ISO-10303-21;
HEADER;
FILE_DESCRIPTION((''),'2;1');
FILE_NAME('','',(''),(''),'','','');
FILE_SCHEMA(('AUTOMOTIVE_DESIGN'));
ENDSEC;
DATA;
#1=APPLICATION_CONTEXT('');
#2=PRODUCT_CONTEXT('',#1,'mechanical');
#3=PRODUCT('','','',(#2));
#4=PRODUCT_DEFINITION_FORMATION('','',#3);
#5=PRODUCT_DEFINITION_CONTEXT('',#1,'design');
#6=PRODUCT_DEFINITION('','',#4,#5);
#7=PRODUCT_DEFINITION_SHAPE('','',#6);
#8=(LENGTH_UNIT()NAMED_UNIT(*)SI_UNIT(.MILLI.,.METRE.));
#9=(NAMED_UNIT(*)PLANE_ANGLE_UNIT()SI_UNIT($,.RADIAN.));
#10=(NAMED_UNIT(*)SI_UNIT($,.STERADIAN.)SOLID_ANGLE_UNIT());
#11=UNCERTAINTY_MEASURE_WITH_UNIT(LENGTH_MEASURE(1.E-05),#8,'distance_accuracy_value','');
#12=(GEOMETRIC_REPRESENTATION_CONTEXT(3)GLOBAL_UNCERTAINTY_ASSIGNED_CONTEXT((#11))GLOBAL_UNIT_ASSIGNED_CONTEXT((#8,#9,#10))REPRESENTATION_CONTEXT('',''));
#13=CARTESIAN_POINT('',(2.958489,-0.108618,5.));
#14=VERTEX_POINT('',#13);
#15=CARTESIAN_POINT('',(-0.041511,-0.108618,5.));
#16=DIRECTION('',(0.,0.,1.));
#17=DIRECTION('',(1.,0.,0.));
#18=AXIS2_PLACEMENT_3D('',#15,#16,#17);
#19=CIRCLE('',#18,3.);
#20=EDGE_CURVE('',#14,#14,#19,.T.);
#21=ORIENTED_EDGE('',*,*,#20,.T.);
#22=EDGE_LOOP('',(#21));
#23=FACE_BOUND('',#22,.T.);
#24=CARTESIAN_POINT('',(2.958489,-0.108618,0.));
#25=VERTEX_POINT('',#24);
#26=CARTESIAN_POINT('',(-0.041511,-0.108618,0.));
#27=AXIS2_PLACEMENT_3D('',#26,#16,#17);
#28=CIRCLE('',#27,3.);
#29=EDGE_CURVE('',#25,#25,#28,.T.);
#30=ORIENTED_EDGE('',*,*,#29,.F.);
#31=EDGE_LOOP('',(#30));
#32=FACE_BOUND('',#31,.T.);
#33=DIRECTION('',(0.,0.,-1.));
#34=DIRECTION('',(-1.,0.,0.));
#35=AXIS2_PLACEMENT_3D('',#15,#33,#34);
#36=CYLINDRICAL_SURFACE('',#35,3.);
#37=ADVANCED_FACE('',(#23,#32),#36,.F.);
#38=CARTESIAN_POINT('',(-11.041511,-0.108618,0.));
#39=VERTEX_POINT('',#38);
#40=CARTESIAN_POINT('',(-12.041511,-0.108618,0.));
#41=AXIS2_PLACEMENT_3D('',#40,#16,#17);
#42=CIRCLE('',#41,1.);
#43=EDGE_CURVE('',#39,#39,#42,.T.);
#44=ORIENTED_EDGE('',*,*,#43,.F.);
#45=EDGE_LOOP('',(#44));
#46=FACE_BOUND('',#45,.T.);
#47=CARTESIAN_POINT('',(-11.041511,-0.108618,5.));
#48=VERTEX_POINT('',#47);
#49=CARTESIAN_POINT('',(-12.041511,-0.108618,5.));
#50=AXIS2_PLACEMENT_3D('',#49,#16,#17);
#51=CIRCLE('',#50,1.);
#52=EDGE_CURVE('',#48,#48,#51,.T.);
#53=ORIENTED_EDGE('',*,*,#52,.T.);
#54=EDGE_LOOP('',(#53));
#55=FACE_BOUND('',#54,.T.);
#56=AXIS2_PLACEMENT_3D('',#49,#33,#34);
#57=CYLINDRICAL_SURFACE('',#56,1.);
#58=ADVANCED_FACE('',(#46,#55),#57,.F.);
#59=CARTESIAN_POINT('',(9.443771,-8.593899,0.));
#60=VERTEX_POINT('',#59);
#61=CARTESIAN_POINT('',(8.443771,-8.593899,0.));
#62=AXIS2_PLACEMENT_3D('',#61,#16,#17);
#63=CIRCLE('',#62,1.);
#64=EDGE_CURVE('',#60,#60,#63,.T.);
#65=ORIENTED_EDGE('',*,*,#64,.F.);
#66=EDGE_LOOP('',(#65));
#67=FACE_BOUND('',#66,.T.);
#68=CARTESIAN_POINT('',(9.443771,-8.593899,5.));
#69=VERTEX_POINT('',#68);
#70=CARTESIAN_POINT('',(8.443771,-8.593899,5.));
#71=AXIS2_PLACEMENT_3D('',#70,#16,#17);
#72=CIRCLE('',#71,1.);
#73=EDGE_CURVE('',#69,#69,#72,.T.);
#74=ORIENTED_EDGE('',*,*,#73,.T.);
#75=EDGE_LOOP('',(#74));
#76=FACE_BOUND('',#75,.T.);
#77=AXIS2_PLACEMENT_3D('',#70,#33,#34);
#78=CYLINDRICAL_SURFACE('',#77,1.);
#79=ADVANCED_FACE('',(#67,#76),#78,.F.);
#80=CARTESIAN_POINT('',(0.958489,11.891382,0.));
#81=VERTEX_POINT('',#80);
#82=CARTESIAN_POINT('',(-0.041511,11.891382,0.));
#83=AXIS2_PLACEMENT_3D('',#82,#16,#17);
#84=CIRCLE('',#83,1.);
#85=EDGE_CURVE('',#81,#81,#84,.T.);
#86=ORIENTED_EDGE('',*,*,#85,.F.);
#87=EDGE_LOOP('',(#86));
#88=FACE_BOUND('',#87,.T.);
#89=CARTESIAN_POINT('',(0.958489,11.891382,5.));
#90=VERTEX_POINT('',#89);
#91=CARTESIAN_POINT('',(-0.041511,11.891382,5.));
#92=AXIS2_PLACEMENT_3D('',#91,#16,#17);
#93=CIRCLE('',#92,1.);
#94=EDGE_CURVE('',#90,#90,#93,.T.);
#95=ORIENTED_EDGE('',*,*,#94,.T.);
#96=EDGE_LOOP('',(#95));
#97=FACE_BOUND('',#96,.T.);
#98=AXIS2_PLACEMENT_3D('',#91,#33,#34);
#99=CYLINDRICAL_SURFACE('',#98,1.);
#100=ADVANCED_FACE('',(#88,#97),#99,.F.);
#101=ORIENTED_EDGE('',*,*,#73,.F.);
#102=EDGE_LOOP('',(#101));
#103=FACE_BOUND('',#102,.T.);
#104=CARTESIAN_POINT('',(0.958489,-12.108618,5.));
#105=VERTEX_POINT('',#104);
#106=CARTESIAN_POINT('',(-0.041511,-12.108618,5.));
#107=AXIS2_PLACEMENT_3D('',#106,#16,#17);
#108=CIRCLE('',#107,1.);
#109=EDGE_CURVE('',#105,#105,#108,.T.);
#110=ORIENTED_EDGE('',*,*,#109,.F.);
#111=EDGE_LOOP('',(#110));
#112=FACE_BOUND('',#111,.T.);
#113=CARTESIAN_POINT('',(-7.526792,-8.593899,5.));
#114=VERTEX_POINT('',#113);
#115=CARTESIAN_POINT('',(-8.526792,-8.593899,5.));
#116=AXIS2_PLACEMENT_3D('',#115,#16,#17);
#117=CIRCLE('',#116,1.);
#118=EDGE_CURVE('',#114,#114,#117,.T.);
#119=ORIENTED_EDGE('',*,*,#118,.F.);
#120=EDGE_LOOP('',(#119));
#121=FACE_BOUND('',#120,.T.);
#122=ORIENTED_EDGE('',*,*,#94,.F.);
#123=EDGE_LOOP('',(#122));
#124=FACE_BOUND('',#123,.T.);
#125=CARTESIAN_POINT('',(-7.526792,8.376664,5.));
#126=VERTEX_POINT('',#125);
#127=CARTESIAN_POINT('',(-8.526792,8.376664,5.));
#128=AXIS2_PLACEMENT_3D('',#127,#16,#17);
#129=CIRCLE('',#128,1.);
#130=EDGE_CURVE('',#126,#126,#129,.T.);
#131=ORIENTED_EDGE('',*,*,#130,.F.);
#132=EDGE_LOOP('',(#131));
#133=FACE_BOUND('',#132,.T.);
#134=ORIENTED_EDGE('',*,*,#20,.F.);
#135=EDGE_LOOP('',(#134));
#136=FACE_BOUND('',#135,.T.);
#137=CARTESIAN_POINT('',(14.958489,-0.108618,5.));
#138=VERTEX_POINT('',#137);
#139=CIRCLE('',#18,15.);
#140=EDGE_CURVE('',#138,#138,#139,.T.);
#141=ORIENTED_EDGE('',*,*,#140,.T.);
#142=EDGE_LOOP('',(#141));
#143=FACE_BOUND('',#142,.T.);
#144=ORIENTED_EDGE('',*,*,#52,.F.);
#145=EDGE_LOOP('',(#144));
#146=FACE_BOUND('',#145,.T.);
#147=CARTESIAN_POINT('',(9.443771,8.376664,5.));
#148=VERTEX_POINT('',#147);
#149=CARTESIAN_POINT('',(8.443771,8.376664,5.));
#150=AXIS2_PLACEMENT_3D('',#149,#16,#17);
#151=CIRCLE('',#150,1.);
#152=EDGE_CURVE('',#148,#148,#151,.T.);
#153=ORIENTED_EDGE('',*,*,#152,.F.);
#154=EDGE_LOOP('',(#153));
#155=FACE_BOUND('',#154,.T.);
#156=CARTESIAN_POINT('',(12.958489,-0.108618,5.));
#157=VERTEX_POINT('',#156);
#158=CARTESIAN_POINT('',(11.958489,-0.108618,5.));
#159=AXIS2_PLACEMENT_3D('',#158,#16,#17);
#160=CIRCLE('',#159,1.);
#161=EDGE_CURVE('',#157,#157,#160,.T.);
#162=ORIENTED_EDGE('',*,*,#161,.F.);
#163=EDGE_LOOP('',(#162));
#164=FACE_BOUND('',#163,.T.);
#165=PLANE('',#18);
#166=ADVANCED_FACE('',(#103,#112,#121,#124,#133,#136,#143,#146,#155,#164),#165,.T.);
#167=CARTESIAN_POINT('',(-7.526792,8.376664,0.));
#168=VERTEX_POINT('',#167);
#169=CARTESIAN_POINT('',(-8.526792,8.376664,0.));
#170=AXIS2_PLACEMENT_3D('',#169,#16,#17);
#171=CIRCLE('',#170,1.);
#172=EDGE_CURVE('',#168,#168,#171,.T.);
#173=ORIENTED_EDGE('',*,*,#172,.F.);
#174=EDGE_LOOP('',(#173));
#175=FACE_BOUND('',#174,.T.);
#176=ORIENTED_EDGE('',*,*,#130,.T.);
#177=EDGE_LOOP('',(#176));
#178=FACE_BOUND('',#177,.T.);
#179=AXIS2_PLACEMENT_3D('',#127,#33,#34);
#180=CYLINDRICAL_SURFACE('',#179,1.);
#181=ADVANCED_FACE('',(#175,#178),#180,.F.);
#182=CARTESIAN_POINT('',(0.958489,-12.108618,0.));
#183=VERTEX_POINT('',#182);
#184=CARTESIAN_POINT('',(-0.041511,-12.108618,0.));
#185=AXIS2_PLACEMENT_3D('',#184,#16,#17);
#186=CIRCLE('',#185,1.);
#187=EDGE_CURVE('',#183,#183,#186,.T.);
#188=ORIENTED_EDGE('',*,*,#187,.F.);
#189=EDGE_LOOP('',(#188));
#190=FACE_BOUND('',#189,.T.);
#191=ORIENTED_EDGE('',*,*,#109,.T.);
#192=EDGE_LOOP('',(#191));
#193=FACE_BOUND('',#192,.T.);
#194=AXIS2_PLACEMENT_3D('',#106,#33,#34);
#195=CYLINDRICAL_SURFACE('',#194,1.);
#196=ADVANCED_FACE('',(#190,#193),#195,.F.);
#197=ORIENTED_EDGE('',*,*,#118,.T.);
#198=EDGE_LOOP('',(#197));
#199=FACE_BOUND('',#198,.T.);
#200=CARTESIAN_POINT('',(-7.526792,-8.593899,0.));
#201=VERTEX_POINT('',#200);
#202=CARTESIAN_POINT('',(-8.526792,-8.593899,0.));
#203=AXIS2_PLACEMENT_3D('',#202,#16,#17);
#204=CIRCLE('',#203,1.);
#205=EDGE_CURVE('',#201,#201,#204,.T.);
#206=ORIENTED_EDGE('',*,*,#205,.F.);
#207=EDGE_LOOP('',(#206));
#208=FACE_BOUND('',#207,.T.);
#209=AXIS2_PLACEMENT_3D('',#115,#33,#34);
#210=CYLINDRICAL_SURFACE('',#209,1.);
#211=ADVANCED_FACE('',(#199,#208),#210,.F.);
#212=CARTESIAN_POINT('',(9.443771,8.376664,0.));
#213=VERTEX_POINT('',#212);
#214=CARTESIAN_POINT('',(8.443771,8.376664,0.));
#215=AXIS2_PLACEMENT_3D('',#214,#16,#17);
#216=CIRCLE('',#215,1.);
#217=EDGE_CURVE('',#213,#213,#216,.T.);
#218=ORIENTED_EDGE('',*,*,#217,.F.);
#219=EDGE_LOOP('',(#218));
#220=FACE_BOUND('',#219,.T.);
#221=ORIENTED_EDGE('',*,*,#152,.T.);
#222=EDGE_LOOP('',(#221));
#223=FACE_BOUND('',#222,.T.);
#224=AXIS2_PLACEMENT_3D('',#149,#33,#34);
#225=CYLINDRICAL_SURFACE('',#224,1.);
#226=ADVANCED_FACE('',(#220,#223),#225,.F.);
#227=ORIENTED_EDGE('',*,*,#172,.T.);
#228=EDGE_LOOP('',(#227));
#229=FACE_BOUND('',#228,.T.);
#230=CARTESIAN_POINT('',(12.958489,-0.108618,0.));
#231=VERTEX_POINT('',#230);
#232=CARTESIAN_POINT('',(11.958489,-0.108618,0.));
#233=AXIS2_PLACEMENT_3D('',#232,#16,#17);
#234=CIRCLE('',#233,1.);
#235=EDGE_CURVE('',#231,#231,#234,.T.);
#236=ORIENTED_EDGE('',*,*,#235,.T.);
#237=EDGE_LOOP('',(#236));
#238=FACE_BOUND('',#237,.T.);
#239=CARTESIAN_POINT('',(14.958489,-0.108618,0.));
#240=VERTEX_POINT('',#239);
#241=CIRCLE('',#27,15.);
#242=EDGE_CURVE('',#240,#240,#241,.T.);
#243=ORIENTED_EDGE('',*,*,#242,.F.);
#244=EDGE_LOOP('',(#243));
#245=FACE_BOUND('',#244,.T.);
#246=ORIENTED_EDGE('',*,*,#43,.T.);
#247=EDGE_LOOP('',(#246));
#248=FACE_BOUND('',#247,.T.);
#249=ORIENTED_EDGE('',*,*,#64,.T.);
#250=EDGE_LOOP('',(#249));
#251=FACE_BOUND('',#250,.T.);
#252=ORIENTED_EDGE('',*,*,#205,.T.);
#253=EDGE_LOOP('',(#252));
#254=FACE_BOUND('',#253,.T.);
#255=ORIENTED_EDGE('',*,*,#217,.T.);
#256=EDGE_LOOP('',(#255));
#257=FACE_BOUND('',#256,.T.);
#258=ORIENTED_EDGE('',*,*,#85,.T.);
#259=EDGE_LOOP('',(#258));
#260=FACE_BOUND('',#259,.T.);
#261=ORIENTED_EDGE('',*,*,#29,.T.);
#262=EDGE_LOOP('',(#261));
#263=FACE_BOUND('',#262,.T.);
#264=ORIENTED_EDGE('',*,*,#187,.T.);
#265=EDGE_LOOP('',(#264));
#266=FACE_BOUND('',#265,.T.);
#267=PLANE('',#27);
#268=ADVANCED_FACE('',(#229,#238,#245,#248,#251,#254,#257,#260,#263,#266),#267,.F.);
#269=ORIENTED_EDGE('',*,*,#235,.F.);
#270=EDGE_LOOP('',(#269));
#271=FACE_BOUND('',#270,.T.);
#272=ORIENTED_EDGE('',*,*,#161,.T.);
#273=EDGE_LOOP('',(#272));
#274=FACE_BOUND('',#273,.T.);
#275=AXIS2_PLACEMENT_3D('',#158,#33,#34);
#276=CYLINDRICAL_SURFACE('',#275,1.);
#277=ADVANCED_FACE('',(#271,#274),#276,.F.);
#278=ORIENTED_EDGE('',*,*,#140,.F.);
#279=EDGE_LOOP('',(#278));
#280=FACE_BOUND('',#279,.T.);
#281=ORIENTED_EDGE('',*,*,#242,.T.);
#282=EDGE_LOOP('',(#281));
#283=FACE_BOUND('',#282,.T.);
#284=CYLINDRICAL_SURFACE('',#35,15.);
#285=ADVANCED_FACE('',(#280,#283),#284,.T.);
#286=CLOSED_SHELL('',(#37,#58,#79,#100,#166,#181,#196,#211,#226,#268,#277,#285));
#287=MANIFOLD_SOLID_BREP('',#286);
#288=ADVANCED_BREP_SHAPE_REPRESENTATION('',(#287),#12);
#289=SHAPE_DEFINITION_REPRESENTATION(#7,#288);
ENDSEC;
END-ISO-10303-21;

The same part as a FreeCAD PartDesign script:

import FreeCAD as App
import Part
import Sketcher

doc = App.newDocument("Part")
body = doc.addObject("PartDesign::Body", "Body")

# Sketch on XY plane
sketch1 = body.newObject("Sketcher::SketchObject", "Sketch")
sketch1.AttachmentSupport = (doc.getObject("XY_Plane"), [""])
sketch1.MapMode = "FlatFace"
sketch1.addGeometry(Part.Circle(App.Vector(0, -0.1, 0), App.Vector(0, 0, 1), 15), False)
sketch1.addGeometry(Part.Circle(App.Vector(-8.5, -8.6, 0), App.Vector(0, 0, 1), 1), False)
sketch1.addGeometry(Part.Circle(App.Vector(0, -12.1, 0), App.Vector(0, 0, 1), 1), False)
sketch1.addGeometry(Part.Circle(App.Vector(8.4, -8.6, 0), App.Vector(0, 0, 1), 1), False)
sketch1.addGeometry(Part.Circle(App.Vector(12, -0.1, 0), App.Vector(0, 0, 1), 1), False)
sketch1.addGeometry(Part.Circle(App.Vector(-12, -0.1, 0), App.Vector(0, 0, 1), 1), False)
sketch1.addGeometry(Part.Circle(App.Vector(0, -0.1, 0), App.Vector(0, 0, 1), 3), False)
sketch1.addGeometry(Part.Circle(App.Vector(-8.5, 8.4, 0), App.Vector(0, 0, 1), 1), False)
sketch1.addGeometry(Part.Circle(App.Vector(0, 11.9, 0), App.Vector(0, 0, 1), 1), False)
sketch1.addGeometry(Part.Circle(App.Vector(8.4, 8.4, 0), App.Vector(0, 0, 1), 1), False)
sketch1.addConstraint(Sketcher.Constraint("Coincident", 6, 3, 0, 3))
sketch1.addConstraint(Sketcher.Constraint("Equal", 1, 2))
sketch1.addConstraint(Sketcher.Constraint("Equal", 2, 3))
sketch1.addConstraint(Sketcher.Constraint("Equal", 3, 4))
sketch1.addConstraint(Sketcher.Constraint("Equal", 4, 5))
sketch1.addConstraint(Sketcher.Constraint("Equal", 5, 7))
sketch1.addConstraint(Sketcher.Constraint("Equal", 7, 8))
sketch1.addConstraint(Sketcher.Constraint("Equal", 8, 9))
sketch1.addConstraint(Sketcher.Constraint("Horizontal", 1, 3, 3, 3))
sketch1.addConstraint(Sketcher.Constraint("Horizontal", 0, 3, 4, 3))
sketch1.addConstraint(Sketcher.Constraint("Horizontal", 4, 3, 5, 3))
sketch1.addConstraint(Sketcher.Constraint("Horizontal", 7, 3, 9, 3))
sketch1.addConstraint(Sketcher.Constraint("Vertical", 0, 3, 2, 3))
sketch1.addConstraint(Sketcher.Constraint("Vertical", 1, 3, 7, 3))
sketch1.addConstraint(Sketcher.Constraint("Vertical", 6, 3, 8, 3))
sketch1.addConstraint(Sketcher.Constraint("Vertical", 3, 3, 9, 3))
sketch1.addConstraint(Sketcher.Constraint("Diameter", 0, 30.0))
sketch1.addConstraint(Sketcher.Constraint("Diameter", 1, 2.0))
sketch1.addConstraint(Sketcher.Constraint("Diameter", 6, 6.0))
sketch1.addConstraint(Sketcher.Constraint("DistanceY", 2, 3, 0, 3, 12.0))
sketch1.addConstraint(Sketcher.Constraint("DistanceX", 0, 3, 4, 3, 12.0))
sketch1.addConstraint(Sketcher.Constraint("DistanceX", 5, 3, 0, 3, 12.0))
sketch1.addConstraint(Sketcher.Constraint("DistanceY", 0, 3, 8, 3, 12.0))
sketch1.addConstraint(Sketcher.Constraint("DistanceY", 1, 3, -1, 1, 8.593899))
sketch1.addConstraint(Sketcher.Constraint("DistanceX", 0, 3, -1, 1, 0.041511))
sketch1.addConstraint(Sketcher.Constraint("DistanceX", -1, 1, 3, 3, 8.443771))
sketch1.addConstraint(Sketcher.Constraint("DistanceX", 1, 3, 0, 3, 8.485281))
sketch1.addConstraint(Sketcher.Constraint("DistanceY", 1, 3, 0, 3, 8.485281))
sketch1.addConstraint(Sketcher.Constraint("DistanceY", 5, 3, 7, 3, 8.485281))
pad1 = body.newObject("PartDesign::Pad", "Pad")
pad1.Profile = sketch1
pad1.Length = 5

doc.recompute()
